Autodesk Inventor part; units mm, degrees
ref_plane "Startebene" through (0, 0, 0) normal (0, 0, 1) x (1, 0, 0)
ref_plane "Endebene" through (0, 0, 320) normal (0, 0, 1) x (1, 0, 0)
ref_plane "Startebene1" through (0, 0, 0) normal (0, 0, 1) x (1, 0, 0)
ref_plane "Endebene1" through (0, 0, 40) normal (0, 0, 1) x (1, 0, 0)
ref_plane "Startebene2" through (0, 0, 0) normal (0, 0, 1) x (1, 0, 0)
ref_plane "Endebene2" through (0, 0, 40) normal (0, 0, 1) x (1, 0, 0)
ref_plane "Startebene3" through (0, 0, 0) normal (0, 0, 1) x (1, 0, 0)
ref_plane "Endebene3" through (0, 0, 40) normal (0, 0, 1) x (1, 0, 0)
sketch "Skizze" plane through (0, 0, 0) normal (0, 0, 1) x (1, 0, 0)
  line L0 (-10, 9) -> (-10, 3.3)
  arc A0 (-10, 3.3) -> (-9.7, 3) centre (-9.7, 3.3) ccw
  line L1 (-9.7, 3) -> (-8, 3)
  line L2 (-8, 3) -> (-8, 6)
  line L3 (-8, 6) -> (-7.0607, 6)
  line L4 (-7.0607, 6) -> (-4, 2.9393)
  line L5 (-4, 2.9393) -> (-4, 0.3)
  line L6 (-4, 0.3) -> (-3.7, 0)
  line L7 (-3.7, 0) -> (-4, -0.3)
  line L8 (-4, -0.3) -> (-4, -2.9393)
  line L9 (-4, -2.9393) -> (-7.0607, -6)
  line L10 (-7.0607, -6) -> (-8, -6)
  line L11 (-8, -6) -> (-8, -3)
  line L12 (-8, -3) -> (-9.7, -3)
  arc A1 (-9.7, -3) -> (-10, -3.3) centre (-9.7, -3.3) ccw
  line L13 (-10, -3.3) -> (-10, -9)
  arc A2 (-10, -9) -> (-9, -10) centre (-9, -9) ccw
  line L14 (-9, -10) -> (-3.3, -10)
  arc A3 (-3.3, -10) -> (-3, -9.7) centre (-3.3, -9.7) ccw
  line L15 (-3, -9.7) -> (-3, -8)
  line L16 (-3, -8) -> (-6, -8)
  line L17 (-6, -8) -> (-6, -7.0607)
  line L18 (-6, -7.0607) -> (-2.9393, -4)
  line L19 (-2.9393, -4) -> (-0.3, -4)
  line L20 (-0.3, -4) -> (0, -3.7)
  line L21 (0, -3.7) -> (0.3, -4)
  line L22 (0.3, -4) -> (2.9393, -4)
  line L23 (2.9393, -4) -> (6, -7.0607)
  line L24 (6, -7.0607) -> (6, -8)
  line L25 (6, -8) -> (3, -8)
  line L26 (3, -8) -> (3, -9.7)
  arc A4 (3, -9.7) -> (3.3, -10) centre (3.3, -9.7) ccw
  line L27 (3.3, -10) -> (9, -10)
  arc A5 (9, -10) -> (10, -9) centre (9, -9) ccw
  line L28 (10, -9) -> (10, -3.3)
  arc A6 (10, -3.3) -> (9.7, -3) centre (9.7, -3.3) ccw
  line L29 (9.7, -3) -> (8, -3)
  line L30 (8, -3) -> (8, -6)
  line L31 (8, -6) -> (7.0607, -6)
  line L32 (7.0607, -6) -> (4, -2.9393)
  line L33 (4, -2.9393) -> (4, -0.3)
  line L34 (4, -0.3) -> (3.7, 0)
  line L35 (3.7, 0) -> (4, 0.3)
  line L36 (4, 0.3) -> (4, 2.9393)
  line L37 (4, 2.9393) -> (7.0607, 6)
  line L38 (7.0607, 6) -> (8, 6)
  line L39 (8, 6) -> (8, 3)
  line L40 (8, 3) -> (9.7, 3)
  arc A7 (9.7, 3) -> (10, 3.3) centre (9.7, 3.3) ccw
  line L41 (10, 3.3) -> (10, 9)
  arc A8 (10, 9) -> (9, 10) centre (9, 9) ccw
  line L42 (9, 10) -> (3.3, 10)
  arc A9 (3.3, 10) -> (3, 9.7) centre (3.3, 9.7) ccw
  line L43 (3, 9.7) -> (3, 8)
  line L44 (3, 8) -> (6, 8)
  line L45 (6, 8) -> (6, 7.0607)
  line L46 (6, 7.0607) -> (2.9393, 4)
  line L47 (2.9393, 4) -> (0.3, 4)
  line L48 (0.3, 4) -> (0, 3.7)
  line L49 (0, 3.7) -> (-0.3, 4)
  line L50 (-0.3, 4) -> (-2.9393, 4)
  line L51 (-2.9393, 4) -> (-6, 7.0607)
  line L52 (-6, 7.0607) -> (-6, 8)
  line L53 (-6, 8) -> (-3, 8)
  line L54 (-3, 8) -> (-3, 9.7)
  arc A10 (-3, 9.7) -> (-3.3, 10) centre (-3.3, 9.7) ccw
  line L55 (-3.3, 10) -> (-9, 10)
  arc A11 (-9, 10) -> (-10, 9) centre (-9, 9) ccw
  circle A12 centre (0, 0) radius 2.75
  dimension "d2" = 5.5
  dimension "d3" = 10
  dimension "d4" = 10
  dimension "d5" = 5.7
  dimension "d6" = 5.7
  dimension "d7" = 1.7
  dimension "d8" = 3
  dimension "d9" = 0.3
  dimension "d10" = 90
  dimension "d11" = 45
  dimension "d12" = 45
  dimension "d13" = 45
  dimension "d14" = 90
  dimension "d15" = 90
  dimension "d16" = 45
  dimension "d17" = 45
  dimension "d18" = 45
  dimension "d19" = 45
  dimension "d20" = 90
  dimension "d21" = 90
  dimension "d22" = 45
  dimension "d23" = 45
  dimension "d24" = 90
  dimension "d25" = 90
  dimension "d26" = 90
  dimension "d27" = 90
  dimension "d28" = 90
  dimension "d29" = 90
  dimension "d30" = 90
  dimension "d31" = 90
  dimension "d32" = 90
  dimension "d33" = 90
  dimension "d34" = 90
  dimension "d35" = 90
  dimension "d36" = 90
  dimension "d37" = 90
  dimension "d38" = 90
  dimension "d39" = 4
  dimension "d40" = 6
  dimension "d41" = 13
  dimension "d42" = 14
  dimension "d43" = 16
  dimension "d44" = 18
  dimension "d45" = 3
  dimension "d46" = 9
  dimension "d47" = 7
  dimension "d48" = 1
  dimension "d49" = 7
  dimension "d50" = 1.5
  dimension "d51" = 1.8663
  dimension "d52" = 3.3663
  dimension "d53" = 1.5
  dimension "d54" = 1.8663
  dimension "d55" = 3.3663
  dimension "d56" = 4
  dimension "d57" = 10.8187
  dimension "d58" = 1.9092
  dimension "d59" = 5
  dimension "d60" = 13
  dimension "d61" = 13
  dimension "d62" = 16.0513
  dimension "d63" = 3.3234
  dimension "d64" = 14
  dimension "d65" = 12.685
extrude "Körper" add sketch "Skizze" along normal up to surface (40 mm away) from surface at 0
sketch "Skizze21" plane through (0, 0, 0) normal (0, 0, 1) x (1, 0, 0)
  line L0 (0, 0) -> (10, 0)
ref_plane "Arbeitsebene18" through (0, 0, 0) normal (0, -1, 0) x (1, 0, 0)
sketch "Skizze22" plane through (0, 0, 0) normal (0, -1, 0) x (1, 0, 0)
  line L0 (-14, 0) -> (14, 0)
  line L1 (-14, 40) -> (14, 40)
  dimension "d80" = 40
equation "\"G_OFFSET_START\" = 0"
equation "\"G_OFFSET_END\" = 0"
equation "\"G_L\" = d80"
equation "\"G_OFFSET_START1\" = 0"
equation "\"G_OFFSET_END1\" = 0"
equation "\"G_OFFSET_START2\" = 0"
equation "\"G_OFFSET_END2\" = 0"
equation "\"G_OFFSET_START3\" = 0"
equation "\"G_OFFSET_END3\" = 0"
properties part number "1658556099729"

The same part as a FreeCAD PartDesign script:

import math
import FreeCAD as App
import Part
import Sketcher
Q = App.Units.Quantity

doc = App.newDocument("Part")
body = doc.addObject("PartDesign::Body", "Body")

# Sketch on XY plane
sketch1 = body.newObject("Sketcher::SketchObject", "Sketch")
sketch1.AttachmentSupport = (doc.getObject("XY_Plane"), [""])
sketch1.MapMode = "FlatFace"
sketch1.addGeometry([
    Part.ArcOfCircle(Part.Circle(App.Vector(-9, 9, 0), App.Vector(0, 0, 1), 1), math.radians(90), math.radians(180)),  # 0
    Part.LineSegment(App.Vector(-10, 9, 0), App.Vector(-10, 3.3, 0)),  # 1
    Part.ArcOfCircle(Part.Circle(App.Vector(-9.7, 3.3, 0), App.Vector(0, 0, 1), 0.3), math.radians(180), math.radians(270)),  # 2
    Part.LineSegment(App.Vector(-9.7, 3, 0), App.Vector(-8, 3, 0)),  # 3
    Part.LineSegment(App.Vector(-8, 3, 0), App.Vector(-8, 6, 0)),  # 4
    Part.LineSegment(App.Vector(-8, 6, 0), App.Vector(-7.0607, 6, 0)),  # 5
    Part.LineSegment(App.Vector(-7.0607, 6, 0), App.Vector(-4, 2.9393, 0)),  # 6
    Part.LineSegment(App.Vector(-4, 2.9393, 0), App.Vector(-4, 0.3, 0)),  # 7
    Part.LineSegment(App.Vector(-4, 0.3, 0), App.Vector(-3.7, 0, 0)),  # 8
    Part.LineSegment(App.Vector(-3.7, 0, 0), App.Vector(-4, -0.3, 0)),  # 9
    Part.LineSegment(App.Vector(-4, -0.3, 0), App.Vector(-4, -2.9393, 0)),  # 10
    Part.LineSegment(App.Vector(-4, -2.9393, 0), App.Vector(-7.0607, -6, 0)),  # 11
    Part.LineSegment(App.Vector(-7.0607, -6, 0), App.Vector(-8, -6, 0)),  # 12
    Part.LineSegment(App.Vector(-8, -6, 0), App.Vector(-8, -3, 0)),  # 13
    Part.LineSegment(App.Vector(-8, -3, 0), App.Vector(-9.7, -3, 0)),  # 14
    Part.ArcOfCircle(Part.Circle(App.Vector(-9.7, -3.3, 0), App.Vector(0, 0, 1), 0.3), math.radians(90), math.radians(180)),  # 15
    Part.LineSegment(App.Vector(-10, -3.3, 0), App.Vector(-10, -9, 0)),  # 16
    Part.ArcOfCircle(Part.Circle(App.Vector(-9, -9, 0), App.Vector(0, 0, 1), 1), math.radians(180), math.radians(270)),  # 17
    Part.LineSegment(App.Vector(-9, -10, 0), App.Vector(-3.3, -10, 0)),  # 18
    Part.ArcOfCircle(Part.Circle(App.Vector(-3.3, -9.7, 0), App.Vector(0, 0, 1), 0.3), math.radians(-90), math.radians(0)),  # 19
    Part.LineSegment(App.Vector(-3, -9.7, 0), App.Vector(-3, -8, 0)),  # 20
    Part.LineSegment(App.Vector(-3, -8, 0), App.Vector(-6, -8, 0)),  # 21
    Part.LineSegment(App.Vector(-6, -8, 0), App.Vector(-6, -7.0607, 0)),  # 22
    Part.LineSegment(App.Vector(-6, -7.0607, 0), App.Vector(-2.9393, -4, 0)),  # 23
    Part.LineSegment(App.Vector(-2.9393, -4, 0), App.Vector(-0.3, -4, 0)),  # 24
    Part.LineSegment(App.Vector(-0.3, -4, 0), App.Vector(0, -3.7, 0)),  # 25
    Part.LineSegment(App.Vector(0, -3.7, 0), App.Vector(0.3, -4, 0)),  # 26
    Part.LineSegment(App.Vector(0.3, -4, 0), App.Vector(2.9393, -4, 0)),  # 27
    Part.LineSegment(App.Vector(2.9393, -4, 0), App.Vector(6, -7.0607, 0)),  # 28
    Part.LineSegment(App.Vector(6, -7.0607, 0), App.Vector(6, -8, 0)),  # 29
    Part.LineSegment(App.Vector(6, -8, 0), App.Vector(3, -8, 0)),  # 30
    Part.LineSegment(App.Vector(3, -8, 0), App.Vector(3, -9.7, 0)),  # 31
    Part.ArcOfCircle(Part.Circle(App.Vector(3.3, -9.7, 0), App.Vector(0, 0, 1), 0.3), math.radians(180), math.radians(270)),  # 32
    Part.LineSegment(App.Vector(3.3, -10, 0), App.Vector(9, -10, 0)),  # 33
    Part.ArcOfCircle(Part.Circle(App.Vector(9, -9, 0), App.Vector(0, 0, 1), 1), math.radians(-90), math.radians(0)),  # 34
    Part.LineSegment(App.Vector(10, -9, 0), App.Vector(10, -3.3, 0)),  # 35
    Part.ArcOfCircle(Part.Circle(App.Vector(9.7, -3.3, 0), App.Vector(0, 0, 1), 0.3), math.radians(0), math.radians(90)),  # 36
    Part.LineSegment(App.Vector(9.7, -3, 0), App.Vector(8, -3, 0)),  # 37
    Part.LineSegment(App.Vector(8, -3, 0), App.Vector(8, -6, 0)),  # 38
    Part.LineSegment(App.Vector(8, -6, 0), App.Vector(7.0607, -6, 0)),  # 39
    Part.LineSegment(App.Vector(7.0607, -6, 0), App.Vector(4, -2.9393, 0)),  # 40
    Part.LineSegment(App.Vector(4, -2.9393, 0), App.Vector(4, -0.3, 0)),  # 41
    Part.LineSegment(App.Vector(4, -0.3, 0), App.Vector(3.7, 0, 0)),  # 42
    Part.LineSegment(App.Vector(3.7, 0, 0), App.Vector(4, 0.3, 0)),  # 43
    Part.LineSegment(App.Vector(4, 0.3, 0), App.Vector(4, 2.9393, 0)),  # 44
    Part.LineSegment(App.Vector(4, 2.9393, 0), App.Vector(7.0607, 6, 0)),  # 45
    Part.LineSegment(App.Vector(7.0607, 6, 0), App.Vector(8, 6, 0)),  # 46
    Part.LineSegment(App.Vector(8, 6, 0), App.Vector(8, 3, 0)),  # 47
    Part.LineSegment(App.Vector(8, 3, 0), App.Vector(9.7, 3, 0)),  # 48
    Part.ArcOfCircle(Part.Circle(App.Vector(9.7, 3.3, 0), App.Vector(0, 0, 1), 0.3), math.radians(-90), math.radians(0)),  # 49
    Part.LineSegment(App.Vector(10, 3.3, 0), App.Vector(10, 9, 0)),  # 50
    Part.ArcOfCircle(Part.Circle(App.Vector(9, 9, 0), App.Vector(0, 0, 1), 1), math.radians(0), math.radians(90)),  # 51
    Part.LineSegment(App.Vector(9, 10, 0), App.Vector(3.3, 10, 0)),  # 52
    Part.ArcOfCircle(Part.Circle(App.Vector(3.3, 9.7, 0), App.Vector(0, 0, 1), 0.3), math.radians(90), math.radians(180)),  # 53
    Part.LineSegment(App.Vector(3, 9.7, 0), App.Vector(3, 8, 0)),  # 54
    Part.LineSegment(App.Vector(3, 8, 0), App.Vector(6, 8, 0)),  # 55
    Part.LineSegment(App.Vector(6, 8, 0), App.Vector(6, 7.0607, 0)),  # 56
    Part.LineSegment(App.Vector(6, 7.0607, 0), App.Vector(2.9393, 4, 0)),  # 57
    Part.LineSegment(App.Vector(2.9393, 4, 0), App.Vector(0.3, 4, 0)),  # 58
    Part.LineSegment(App.Vector(0.3, 4, 0), App.Vector(0, 3.7, 0)),  # 59
    Part.LineSegment(App.Vector(0, 3.7, 0), App.Vector(-0.3, 4, 0)),  # 60
    Part.LineSegment(App.Vector(-0.3, 4, 0), App.Vector(-2.9393, 4, 0)),  # 61
    Part.LineSegment(App.Vector(-2.9393, 4, 0), App.Vector(-6, 7.0607, 0)),  # 62
    Part.LineSegment(App.Vector(-6, 7.0607, 0), App.Vector(-6, 8, 0)),  # 63
    Part.LineSegment(App.Vector(-6, 8, 0), App.Vector(-3, 8, 0)),  # 64
    Part.LineSegment(App.Vector(-3, 8, 0), App.Vector(-3, 9.7, 0)),  # 65
    Part.ArcOfCircle(Part.Circle(App.Vector(-3.3, 9.7, 0), App.Vector(0, 0, 1), 0.3), math.radians(0), math.radians(90)),  # 66
    Part.LineSegment(App.Vector(-3.3, 10, 0), App.Vector(-9, 10, 0)),  # 67
    Part.Circle(App.Vector(0, 0, 0), App.Vector(0, 0, 1), 2.75),  # 68
], False)
sketch1.addConstraint([
    Sketcher.Constraint("Tangent", 0, 2, 1, 1),
    Sketcher.Constraint("Tangent", 1, 2, 2, 1),
    Sketcher.Constraint("Tangent", 2, 2, 3, 1),
    Sketcher.Constraint("Coincident", 3, 2, 4, 1),
    Sketcher.Constraint("Coincident", 4, 2, 5, 1),
    Sketcher.Constraint("Coincident", 5, 2, 6, 1),
    Sketcher.Constraint("Coincident", 6, 2, 7, 1),
    Sketcher.Constraint("Coincident", 7, 2, 8, 1),
    Sketcher.Constraint("Coincident", 8, 2, 9, 1),
    Sketcher.Constraint("Coincident", 9, 2, 10, 1),
    Sketcher.Constraint("Coincident", 10, 2, 11, 1),
    Sketcher.Constraint("Coincident", 11, 2, 12, 1),
    Sketcher.Constraint("Coincident", 12, 2, 13, 1),
    Sketcher.Constraint("Coincident", 13, 2, 14, 1),
    Sketcher.Constraint("Tangent", 14, 2, 15, 1),
    Sketcher.Constraint("Tangent", 15, 2, 16, 1),
    Sketcher.Constraint("Tangent", 16, 2, 17, 1),
    Sketcher.Constraint("Tangent", 17, 2, 18, 1),
    Sketcher.Constraint("Tangent", 18, 2, 19, 1),
    Sketcher.Constraint("Tangent", 19, 2, 20, 1),
    Sketcher.Constraint("Coincident", 20, 2, 21, 1),
    Sketcher.Constraint("Coincident", 21, 2, 22, 1),
    Sketcher.Constraint("Coincident", 22, 2, 23, 1),
    Sketcher.Constraint("Coincident", 23, 2, 24, 1),
    Sketcher.Constraint("Coincident", 24, 2, 25, 1),
    Sketcher.Constraint("Coincident", 25, 2, 26, 1),
    Sketcher.Constraint("Coincident", 26, 2, 27, 1),
    Sketcher.Constraint("Coincident", 27, 2, 28, 1),
    Sketcher.Constraint("Coincident", 28, 2, 29, 1),
    Sketcher.Constraint("Coincident", 29, 2, 30, 1),
    Sketcher.Constraint("Coincident", 30, 2, 31, 1),
    Sketcher.Constraint("Tangent", 31, 2, 32, 1),
    Sketcher.Constraint("Tangent", 32, 2, 33, 1),
    Sketcher.Constraint("Tangent", 33, 2, 34, 1),
    Sketcher.Constraint("Tangent", 34, 2, 35, 1),
    Sketcher.Constraint("Tangent", 35, 2, 36, 1),
    Sketcher.Constraint("Tangent", 36, 2, 37, 1),
    Sketcher.Constraint("Coincident", 37, 2, 38, 1),
    Sketcher.Constraint("Coincident", 38, 2, 39, 1),
    Sketcher.Constraint("Coincident", 39, 2, 40, 1),
    Sketcher.Constraint("Coincident", 40, 2, 41, 1),
    Sketcher.Constraint("Coincident", 41, 2, 42, 1),
    Sketcher.Constraint("Coincident", 42, 2, 43, 1),
    Sketcher.Constraint("Coincident", 43, 2, 44, 1),
    Sketcher.Constraint("Coincident", 44, 2, 45, 1),
    Sketcher.Constraint("Coincident", 45, 2, 46, 1),
    Sketcher.Constraint("Coincident", 46, 2, 47, 1),
    Sketcher.Constraint("Coincident", 47, 2, 48, 1),
    Sketcher.Constraint("Tangent", 48, 2, 49, 1),
    Sketcher.Constraint("Tangent", 49, 2, 50, 1),
    Sketcher.Constraint("Tangent", 50, 2, 51, 1),
    Sketcher.Constraint("Tangent", 51, 2, 52, 1),
    Sketcher.Constraint("Tangent", 52, 2, 53, 1),
    Sketcher.Constraint("Tangent", 53, 2, 54, 1),
    Sketcher.Constraint("Coincident", 54, 2, 55, 1),
    Sketcher.Constraint("Coincident", 55, 2, 56, 1),
    Sketcher.Constraint("Coincident", 56, 2, 57, 1),
    Sketcher.Constraint("Coincident", 57, 2, 58, 1),
    Sketcher.Constraint("Coincident", 58, 2, 59, 1),
    Sketcher.Constraint("Coincident", 59, 2, 60, 1),
    Sketcher.Constraint("Coincident", 60, 2, 61, 1),
    Sketcher.Constraint("Coincident", 61, 2, 62, 1),
    Sketcher.Constraint("Coincident", 62, 2, 63, 1),
    Sketcher.Constraint("Coincident", 63, 2, 64, 1),
    Sketcher.Constraint("Coincident", 64, 2, 65, 1),
    Sketcher.Constraint("Tangent", 65, 2, 66, 1),
    Sketcher.Constraint("Tangent", 66, 2, 67, 1),
    Sketcher.Constraint("Tangent", 67, 2, 0, 1),
    Sketcher.Constraint("Vertical", 1),
    Sketcher.Constraint("Horizontal", 3),
    Sketcher.Constraint("Vertical", 4),
    Sketcher.Constraint("Horizontal", 5),
    Sketcher.Constraint("Vertical", 7),
    Sketcher.Constraint("Vertical", 10),
    Sketcher.Constraint("Horizontal", 12),
    Sketcher.Constraint("Vertical", 13),
    Sketcher.Constraint("Horizontal", 14),
    Sketcher.Constraint("Vertical", 16),
    Sketcher.Constraint("Horizontal", 18),
    Sketcher.Constraint("Vertical", 20),
    Sketcher.Constraint("Horizontal", 21),
    Sketcher.Constraint("Vertical", 22),
    Sketcher.Constraint("Horizontal", 24),
    Sketcher.Constraint("Horizontal", 27),
    Sketcher.Constraint("Vertical", 29),
    Sketcher.Constraint("Horizontal", 30),
    Sketcher.Constraint("Vertical", 31),
    Sketcher.Constraint("Horizontal", 33),
    Sketcher.Constraint("Vertical", 35),
    Sketcher.Constraint("Horizontal", 37),
    Sketcher.Constraint("Vertical", 38),
    Sketcher.Constraint("Horizontal", 39),
    Sketcher.Constraint("Vertical", 41),
    Sketcher.Constraint("Vertical", 44),
    Sketcher.Constraint("Horizontal", 46),
    Sketcher.Constraint("Vertical", 47),
    Sketcher.Constraint("Horizontal", 48),
    Sketcher.Constraint("Vertical", 50),
    Sketcher.Constraint("Horizontal", 52),
    Sketcher.Constraint("Vertical", 54),
    Sketcher.Constraint("Horizontal", 55),
    Sketcher.Constraint("Vertical", 56),
    Sketcher.Constraint("Horizontal", 58),
    Sketcher.Constraint("Horizontal", 61),
    Sketcher.Constraint("Vertical", 63),
    Sketcher.Constraint("Horizontal", 64),
    Sketcher.Constraint("Vertical", 65),
    Sketcher.Constraint("Horizontal", 67),
    Sketcher.Constraint("Coincident", 68, 3, -1, 1),
    Sketcher.Constraint("Equal", 2, 15),
    Sketcher.Constraint("Equal", 0, 17),
    Sketcher.Constraint("Equal", 15, 19),
    Sketcher.Constraint("Equal", 19, 32),
    Sketcher.Constraint("Equal", 17, 34),
    Sketcher.Constraint("Equal", 32, 36),
    Sketcher.Constraint("Equal", 36, 49),
    Sketcher.Constraint("Equal", 34, 51),
    Sketcher.Constraint("Equal", 49, 53),
    Sketcher.Constraint("Equal", 53, 66),
    Sketcher.Constraint("Symmetric", 0, 3, 34, 3, -1, 1),
    Sketcher.Constraint("Symmetric", 15, 3, 49, 3, -1, 1),
    Sketcher.Constraint("Symmetric", 19, 3, 53, 3, -1, 1),
    Sketcher.Constraint("Symmetric", 3, 2, 37, 2, -1, 1),
    Sketcher.Constraint("Symmetric", 5, 2, 39, 2, -1, 1),
    Sketcher.Constraint("Symmetric", 6, 2, 40, 2, -1, 1),
    Sketcher.Constraint("Symmetric", 8, 2, 42, 2, -1, 1),
    Sketcher.Constraint("Symmetric", 9, 2, 43, 2, -1, 1),
    Sketcher.Constraint("Symmetric", 11, 2, 45, 2, -1, 1),
    Sketcher.Constraint("Symmetric", 21, 2, 55, 2, -1, 1),
    Sketcher.Constraint("Symmetric", 23, 2, 57, 2, -1, 1),
    Sketcher.Constraint("Symmetric", 25, 2, 59, 2, -1, 1),
    Sketcher.Constraint("Symmetric", 26, 2, 60, 2, -1, 1),
    Sketcher.Constraint("Symmetric", 28, 2, 62, 2, -1, 1),
    Sketcher.Constraint("Symmetric", 30, 2, 64, 2, -1, 1),
    Sketcher.Constraint("Symmetric", 19, 3, 32, 3, -2),
    Sketcher.Constraint("Symmetric", 15, 3, 36, 3, -2),
    Sketcher.Constraint("Symmetric", 24, 2, 26, 2, -2),
    Sketcher.Constraint("Symmetric", 22, 2, 28, 2, -2),
    Sketcher.Constraint("Symmetric", 12, 2, 38, 2, -2),
    Sketcher.Constraint("Symmetric", 10, 2, 40, 2, -2),
    Sketcher.Constraint("PointOnObject", 8, 2, -1),
    Sketcher.Constraint("PointOnObject", 25, 2, -2),
    Sketcher.Constraint("Parallel", 6, 8),
    Sketcher.Constraint("Perpendicular", 8, 9),
    Sketcher.Constraint("Parallel", 9, 11),
    Sketcher.Constraint("Parallel", 11, 23),
    Sketcher.Constraint("Parallel", 23, 25),
    Sketcher.Constraint("Perpendicular", 25, 26),
    Sketcher.Constraint("Parallel", 26, 28),
    Sketcher.Constraint("Parallel", 40, 42),
    Sketcher.Constraint("Parallel", 43, 45),
    Sketcher.Constraint("Parallel", 45, 57),
    Sketcher.Constraint("Parallel", 57, 59),
    Sketcher.Constraint("Parallel", 60, 62),
    Sketcher.Constraint("Horizontal", 21, 2, 29, 2),
    Sketcher.Constraint("Vertical", 38, 2, 46, 2),
    Sketcher.Constraint("Equal", 67, 1),
    Sketcher.Constraint("Equal", 64, 4),
    Sketcher.Constraint("Equal", 61, 7),
    Sketcher.Constraint("Equal", 48, 20),
    Sketcher.Constraint("Equal", 46, 22),
    Sketcher.Constraint("Equal", 11, 23),
    Sketcher.Constraint("Equal", 9, 25),
    Sketcher.Constraint("Radius", 0, Q("1 mm")),
    Sketcher.Constraint("Diameter", 68, Q("5.5 mm")),
    Sketcher.Constraint("Radius", 2, Q("0.3 mm")),
    Sketcher.Constraint("DistanceX", 21, 2, 21, 1, Q("3 mm")),
    Sketcher.Constraint("DistanceX", 3, 1, 3, 2, Q("1.7 mm")),
    Sketcher.Constraint("DistanceX", 18, 1, 18, 2, Q("5.7 mm")),
    Sketcher.Constraint("DistanceX", 0, 3, -1, 1, Q("9 mm")),
    Sketcher.Constraint("DistanceX", 6, 2, -1, 1, Q("4 mm")),
    Sketcher.Constraint("DistanceY", -1, 1, 7, 2, Q("0.3 mm")),
    Sketcher.Constraint("DistanceX", 5, 1, 5, 2, Q("0.9393 mm")),
])
pad1 = body.newObject("PartDesign::Pad", "Pad")
pad1.Profile = sketch1
pad1.Length = 40

doc.recompute()
